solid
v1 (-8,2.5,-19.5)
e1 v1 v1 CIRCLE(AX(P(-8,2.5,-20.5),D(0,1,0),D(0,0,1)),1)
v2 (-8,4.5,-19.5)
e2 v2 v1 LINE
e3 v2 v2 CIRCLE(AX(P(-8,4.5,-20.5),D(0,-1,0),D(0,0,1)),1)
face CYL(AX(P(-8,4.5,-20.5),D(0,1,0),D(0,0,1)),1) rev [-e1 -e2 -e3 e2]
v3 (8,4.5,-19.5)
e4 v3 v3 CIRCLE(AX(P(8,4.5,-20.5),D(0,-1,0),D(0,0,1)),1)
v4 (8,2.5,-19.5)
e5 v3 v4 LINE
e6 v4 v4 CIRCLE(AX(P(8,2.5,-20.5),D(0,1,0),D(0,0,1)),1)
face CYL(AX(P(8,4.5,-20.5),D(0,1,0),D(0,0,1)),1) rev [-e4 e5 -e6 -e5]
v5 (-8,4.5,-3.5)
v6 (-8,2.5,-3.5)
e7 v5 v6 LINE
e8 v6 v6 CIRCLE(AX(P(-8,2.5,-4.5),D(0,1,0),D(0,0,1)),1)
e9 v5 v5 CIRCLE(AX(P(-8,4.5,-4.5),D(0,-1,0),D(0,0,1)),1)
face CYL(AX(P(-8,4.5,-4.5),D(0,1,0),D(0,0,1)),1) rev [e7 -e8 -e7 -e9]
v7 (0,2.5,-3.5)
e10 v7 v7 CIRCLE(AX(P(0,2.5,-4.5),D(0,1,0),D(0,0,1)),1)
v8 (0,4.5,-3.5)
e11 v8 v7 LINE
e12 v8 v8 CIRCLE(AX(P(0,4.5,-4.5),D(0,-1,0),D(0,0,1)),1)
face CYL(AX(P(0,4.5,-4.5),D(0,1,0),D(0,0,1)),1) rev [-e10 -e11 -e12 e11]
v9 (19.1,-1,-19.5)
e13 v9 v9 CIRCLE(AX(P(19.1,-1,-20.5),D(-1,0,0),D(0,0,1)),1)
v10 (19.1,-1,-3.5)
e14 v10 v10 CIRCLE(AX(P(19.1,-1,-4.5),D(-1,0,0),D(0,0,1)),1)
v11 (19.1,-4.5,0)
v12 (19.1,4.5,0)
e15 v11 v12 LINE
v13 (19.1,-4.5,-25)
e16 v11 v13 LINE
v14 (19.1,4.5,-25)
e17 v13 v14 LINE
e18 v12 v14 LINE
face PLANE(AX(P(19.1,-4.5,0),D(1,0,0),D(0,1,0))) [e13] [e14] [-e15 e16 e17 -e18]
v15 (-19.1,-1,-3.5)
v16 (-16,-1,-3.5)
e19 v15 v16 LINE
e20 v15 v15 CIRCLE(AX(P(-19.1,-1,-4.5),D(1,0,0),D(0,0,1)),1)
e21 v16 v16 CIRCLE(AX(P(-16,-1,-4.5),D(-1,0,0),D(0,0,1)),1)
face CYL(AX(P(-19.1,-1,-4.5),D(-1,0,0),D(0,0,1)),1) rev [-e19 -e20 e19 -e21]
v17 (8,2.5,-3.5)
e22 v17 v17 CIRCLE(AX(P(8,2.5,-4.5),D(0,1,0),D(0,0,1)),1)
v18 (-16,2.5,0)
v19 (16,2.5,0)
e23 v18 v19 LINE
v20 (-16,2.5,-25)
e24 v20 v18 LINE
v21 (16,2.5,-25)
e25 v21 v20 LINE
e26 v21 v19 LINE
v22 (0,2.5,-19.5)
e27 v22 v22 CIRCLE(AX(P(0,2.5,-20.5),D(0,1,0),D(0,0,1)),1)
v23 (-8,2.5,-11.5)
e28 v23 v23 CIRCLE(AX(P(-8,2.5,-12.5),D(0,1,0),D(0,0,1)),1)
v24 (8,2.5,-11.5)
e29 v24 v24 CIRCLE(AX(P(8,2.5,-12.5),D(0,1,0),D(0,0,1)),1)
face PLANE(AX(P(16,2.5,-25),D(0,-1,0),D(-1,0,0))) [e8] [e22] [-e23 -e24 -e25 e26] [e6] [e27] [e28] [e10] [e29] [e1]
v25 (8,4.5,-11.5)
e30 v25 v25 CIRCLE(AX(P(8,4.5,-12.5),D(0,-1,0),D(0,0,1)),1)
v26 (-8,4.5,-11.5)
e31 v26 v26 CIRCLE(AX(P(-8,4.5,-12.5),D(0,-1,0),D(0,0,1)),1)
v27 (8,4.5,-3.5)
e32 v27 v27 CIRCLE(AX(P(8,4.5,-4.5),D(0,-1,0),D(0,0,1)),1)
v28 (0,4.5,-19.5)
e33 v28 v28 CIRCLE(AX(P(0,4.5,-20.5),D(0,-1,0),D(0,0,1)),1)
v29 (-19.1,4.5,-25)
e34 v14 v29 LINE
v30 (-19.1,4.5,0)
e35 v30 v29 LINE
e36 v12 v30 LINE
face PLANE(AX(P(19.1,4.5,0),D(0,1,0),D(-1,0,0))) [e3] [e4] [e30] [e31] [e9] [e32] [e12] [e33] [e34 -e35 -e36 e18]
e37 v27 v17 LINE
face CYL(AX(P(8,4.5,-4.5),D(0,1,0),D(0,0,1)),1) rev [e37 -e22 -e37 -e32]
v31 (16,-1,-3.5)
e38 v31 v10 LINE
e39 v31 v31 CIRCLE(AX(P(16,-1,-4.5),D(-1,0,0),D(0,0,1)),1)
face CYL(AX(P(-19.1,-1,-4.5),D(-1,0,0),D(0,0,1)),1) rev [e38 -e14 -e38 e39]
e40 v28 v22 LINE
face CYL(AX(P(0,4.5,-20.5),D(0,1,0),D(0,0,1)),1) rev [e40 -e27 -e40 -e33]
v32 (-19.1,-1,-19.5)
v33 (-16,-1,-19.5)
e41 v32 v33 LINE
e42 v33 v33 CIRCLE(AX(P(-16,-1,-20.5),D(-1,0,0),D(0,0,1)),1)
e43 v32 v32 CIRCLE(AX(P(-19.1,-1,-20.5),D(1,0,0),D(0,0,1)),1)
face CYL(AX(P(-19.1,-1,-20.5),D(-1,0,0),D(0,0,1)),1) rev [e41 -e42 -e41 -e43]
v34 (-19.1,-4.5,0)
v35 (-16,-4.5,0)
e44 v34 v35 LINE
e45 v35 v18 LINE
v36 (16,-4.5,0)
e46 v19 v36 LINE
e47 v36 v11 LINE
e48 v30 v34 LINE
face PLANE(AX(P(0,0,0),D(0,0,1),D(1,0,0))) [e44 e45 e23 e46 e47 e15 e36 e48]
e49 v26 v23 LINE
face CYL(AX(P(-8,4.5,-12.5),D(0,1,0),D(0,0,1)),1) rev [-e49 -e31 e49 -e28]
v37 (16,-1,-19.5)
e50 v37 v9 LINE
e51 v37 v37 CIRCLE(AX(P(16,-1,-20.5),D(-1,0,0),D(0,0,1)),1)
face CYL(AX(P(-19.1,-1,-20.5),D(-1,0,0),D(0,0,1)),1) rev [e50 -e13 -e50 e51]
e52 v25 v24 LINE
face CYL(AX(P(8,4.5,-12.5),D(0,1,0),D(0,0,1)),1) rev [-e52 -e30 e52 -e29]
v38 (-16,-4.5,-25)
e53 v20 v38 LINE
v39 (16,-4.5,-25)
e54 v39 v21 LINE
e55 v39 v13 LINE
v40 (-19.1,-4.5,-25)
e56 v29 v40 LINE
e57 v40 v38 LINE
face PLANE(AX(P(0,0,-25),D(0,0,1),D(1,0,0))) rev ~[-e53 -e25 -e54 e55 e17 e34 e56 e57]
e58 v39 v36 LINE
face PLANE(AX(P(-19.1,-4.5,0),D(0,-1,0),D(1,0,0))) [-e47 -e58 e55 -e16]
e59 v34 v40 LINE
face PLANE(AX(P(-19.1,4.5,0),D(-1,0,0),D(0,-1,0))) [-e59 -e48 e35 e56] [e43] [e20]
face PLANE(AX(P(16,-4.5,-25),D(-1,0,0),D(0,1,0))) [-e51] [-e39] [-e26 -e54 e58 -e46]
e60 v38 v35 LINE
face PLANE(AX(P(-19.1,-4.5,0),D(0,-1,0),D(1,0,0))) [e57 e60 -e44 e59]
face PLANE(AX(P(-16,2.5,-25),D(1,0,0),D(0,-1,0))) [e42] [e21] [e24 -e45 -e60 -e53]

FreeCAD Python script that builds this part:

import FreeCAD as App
import Part
import Sketcher
from FreeCAD import Vector


def add_polygon(sketch, points):
    """Adds a closed chain of lines whose ends are joined by coincident constraints."""
    first, n = sketch.GeometryCount, len(points)
    for a, b in zip(points, points[1:] + points[:1]):
        sketch.addGeometry(Part.LineSegment(App.Vector(*a, 0), App.Vector(*b, 0)), False)
    for i in range(n):
        sketch.addConstraint(Sketcher.Constraint("Coincident", first + i, 2, first + (i + 1) % n, 1))

doc = App.newDocument("Part")
params = doc.addObject("Spreadsheet::Sheet", "Params")
for row, (alias, value) in enumerate([
    ("sketch1_height", "9 mm"),
    ("pad1_length", "25 mm"),
    ("sketch2_height", "7 mm"),
    ("sketch3_diameter", "2 mm"),
    ("hole_diameter", "2 mm"),
    ("sketch4_diameter", "2 mm"),
    ("hole2_diameter", "2 mm"),
    ("sketch5_diameter", "2 mm"),
    ("hole3_diameter", "2 mm"),
    ("sketch6_diameter", "2 mm"),
    ("hole4_diameter", "2 mm"),
    ("sketch7_diameter", "2 mm"),
    ("hole5_diameter", "2 mm"),
    ("sketch8_diameter", "2 mm"),
    ("hole6_diameter", "2 mm"),
    ("sketch9_diameter", "2 mm"),
    ("hole7_diameter", "2 mm"),
    ("sketch10_diameter", "2 mm"),
    ("hole8_diameter", "2 mm"),
    ("sketch11_diameter", "2 mm"),
    ("hole9_diameter", "2 mm"),
    ("sketch12_diameter", "2 mm"),
    ("hole10_diameter", "2 mm"),
], start=1):
    params.set(f"A{row}", alias)
    params.set(f"B{row}", "=" + value)
    params.setAlias(f"B{row}", alias)

body = doc.addObject("PartDesign::Body", "Body")

# Sketch on XY plane
sketch1 = body.newObject("Sketcher::SketchObject", "Sketch")
sketch1.AttachmentSupport = (doc.getObject("XY_Plane"), [""])
sketch1.MapMode = "FlatFace"
add_polygon(sketch1, [(19.1, -4.5), (-19.1, -4.5), (-19.1, 4.5), (19.1, 4.5)])  # lines 0-3
sketch1.addConstraint([
    Sketcher.Constraint("Horizontal", 0),
    Sketcher.Constraint("Vertical", 1),
    Sketcher.Constraint("Horizontal", 2),
    Sketcher.Constraint("Vertical", 3),
    Sketcher.Constraint("Symmetric", 0, 2, 2, 2, -1, 1),
    Sketcher.Constraint("DistanceX", 0, 2, -1, 1, 19.1),
    Sketcher.Constraint("DistanceY", 1, 1, 1, 2, 9.0),
])
sketch1.setExpression("Constraints[10]", "Params.sketch1_height")
pad1 = body.newObject("PartDesign::Pad", "Pad")
pad1.Profile = sketch1
pad1.setExpression("Length", "Params.pad1_length")
pad1.Reversed = True

# Sketch on XY plane
sketch2 = body.newObject("Sketcher::SketchObject", "Sketch001")
sketch2.AttachmentSupport = (doc.getObject("XY_Plane"), [""])
sketch2.MapMode = "FlatFace"
sketch2.AttachmentOffset = App.Placement(Vector(0, 0, -25), App.Rotation())
add_polygon(sketch2, [(16, -4.5), (-16, -4.5), (-16, 2.5), (16, 2.5)])  # lines 0-3
sketch2.addConstraint([
    Sketcher.Constraint("Horizontal", 0),
    Sketcher.Constraint("Vertical", 1),
    Sketcher.Constraint("Horizontal", 2),
    Sketcher.Constraint("Vertical", 3),
    Sketcher.Constraint("DistanceX", 0, 2, -1, 1, 16.0),
    Sketcher.Constraint("DistanceX", -1, 1, 2, 2, 16.0),
    Sketcher.Constraint("DistanceY", 1, 1, 1, 2, 7.0),
    Sketcher.Constraint("DistanceY", 0, 2, -1, 1, 4.5),
])
sketch2.setExpression("Constraints[10]", "Params.sketch2_height")
pocket1 = body.newObject("PartDesign::Pocket", "Pocket")
pocket1.Profile = sketch2
pocket1.Type = "ThroughAll"
pocket1.Reversed = True

# Sketch on YZ plane
sketch3 = body.newObject("Sketcher::SketchObject", "Sketch002")
sketch3.AttachmentSupport = (doc.getObject("YZ_Plane"), [""])
sketch3.MapMode = "FlatFace"
sketch3.AttachmentOffset = App.Placement(Vector(0, 0, -19.1), App.Rotation())
sketch3.addGeometry(Part.Circle(Vector(-1, -4.5, 0), Vector(0, 0, 1), 1), False)
sketch3.addConstraint([
    Sketcher.Constraint("Diameter", 0, 2.0),
    Sketcher.Constraint("DistanceX", 0, 3, -1, 1, 1.0),
    Sketcher.Constraint("DistanceY", 0, 3, -1, 1, 4.5),
])
sketch3.setExpression("Constraints[0]", "Params.sketch3_diameter")
doc.recompute()
hole = body.newObject("PartDesign::Hole", "Hole")
hole.Profile = sketch3
hole.ThreadType = "None"
hole.setExpression("Diameter", "Params.hole_diameter")
hole.DepthType = "ThroughAll"
hole.Reversed = True

# Sketch on YZ plane
sketch4 = body.newObject("Sketcher::SketchObject", "Sketch003")
sketch4.AttachmentSupport = (doc.getObject("YZ_Plane"), [""])
sketch4.MapMode = "FlatFace"
sketch4.AttachmentOffset = App.Placement(Vector(0, 0, -19.1), App.Rotation())
sketch4.addGeometry(Part.Circle(Vector(-1, -20.5, 0), Vector(0, 0, 1), 1), False)
sketch4.addConstraint([
    Sketcher.Constraint("Diameter", 0, 2.0),
    Sketcher.Constraint("DistanceX", 0, 3, -1, 1, 1.0),
    Sketcher.Constraint("DistanceY", 0, 3, -1, 1, 20.5),
])
sketch4.setExpression("Constraints[0]", "Params.sketch4_diameter")
doc.recompute()
hole2 = body.newObject("PartDesign::Hole", "Hole001")
hole2.Profile = sketch4
hole2.ThreadType = "None"
hole2.setExpression("Diameter", "Params.hole2_diameter")
hole2.DepthType = "ThroughAll"
hole2.Reversed = True

# Sketch on XZ plane
sketch5 = body.newObject("Sketcher::SketchObject", "Sketch004")
sketch5.AttachmentSupport = (doc.getObject("XZ_Plane"), [""])
sketch5.MapMode = "FlatFace"
sketch5.AttachmentOffset = App.Placement(Vector(0, 0, -4.5), App.Rotation())
sketch5.addGeometry(Part.Circle(Vector(0, -20.5, 0), Vector(0, 0, 1), 1), False)
sketch5.addConstraint([
    Sketcher.Constraint("PointOnObject", 0, 3, -2),
    Sketcher.Constraint("Diameter", 0, 2.0),
    Sketcher.Constraint("DistanceY", 0, 3, -1, 1, 20.5),
])
sketch5.setExpression("Constraints[1]", "Params.sketch5_diameter")
doc.recompute()
hole3 = body.newObject("PartDesign::Hole", "Hole002")
hole3.Profile = sketch5
hole3.ThreadType = "None"
hole3.setExpression("Diameter", "Params.hole3_diameter")
hole3.DepthType = "ThroughAll"
hole3.Reversed = True

# Sketch on XZ plane
sketch6 = body.newObject("Sketcher::SketchObject", "Sketch005")
sketch6.AttachmentSupport = (doc.getObject("XZ_Plane"), [""])
sketch6.MapMode = "FlatFace"
sketch6.AttachmentOffset = App.Placement(Vector(0, 0, -4.5), App.Rotation())
sketch6.addGeometry(Part.Circle(Vector(0, -4.5, 0), Vector(0, 0, 1), 1), False)
sketch6.addConstraint([
    Sketcher.Constraint("PointOnObject", 0, 3, -2),
    Sketcher.Constraint("Diameter", 0, 2.0),
    Sketcher.Constraint("DistanceY", 0, 3, -1, 1, 4.5),
])
sketch6.setExpression("Constraints[1]", "Params.sketch6_diameter")
doc.recompute()
hole4 = body.newObject("PartDesign::Hole", "Hole003")
hole4.Profile = sketch6
hole4.ThreadType = "None"
hole4.setExpression("Diameter", "Params.hole4_diameter")
hole4.DepthType = "ThroughAll"
hole4.Reversed = True

# Sketch on XZ plane
sketch7 = body.newObject("Sketcher::SketchObject", "Sketch006")
sketch7.AttachmentSupport = (doc.getObject("XZ_Plane"), [""])
sketch7.MapMode = "FlatFace"
sketch7.AttachmentOffset = App.Placement(Vector(0, 0, -4.5), App.Rotation())
sketch7.addGeometry(Part.Circle(Vector(-8, -4.5, 0), Vector(0, 0, 1), 1), False)
sketch7.addConstraint([
    Sketcher.Constraint("Diameter", 0, 2.0),
    Sketcher.Constraint("DistanceX", 0, 3, -1, 1, 8.0),
    Sketcher.Constraint("DistanceY", 0, 3, -1, 1, 4.5),
])
sketch7.setExpression("Constraints[0]", "Params.sketch7_diameter")
doc.recompute()
hole5 = body.newObject("PartDesign::Hole", "Hole004")
hole5.Profile = sketch7
hole5.ThreadType = "None"
hole5.setExpression("Diameter", "Params.hole5_diameter")
hole5.DepthType = "ThroughAll"
hole5.Reversed = True

# Sketch on XZ plane
sketch8 = body.newObject("Sketcher::SketchObject", "Sketch007")
sketch8.AttachmentSupport = (doc.getObject("XZ_Plane"), [""])
sketch8.MapMode = "FlatFace"
sketch8.AttachmentOffset = App.Placement(Vector(0, 0, -4.5), App.Rotation())
sketch8.addGeometry(Part.Circle(Vector(-8, -12.5, 0), Vector(0, 0, 1), 1), False)
sketch8.addConstraint([
    Sketcher.Constraint("Diameter", 0, 2.0),
    Sketcher.Constraint("DistanceX", 0, 3, -1, 1, 8.0),
    Sketcher.Constraint("DistanceY", 0, 3, -1, 1, 12.5),
])
sketch8.setExpression("Constraints[0]", "Params.sketch8_diameter")
doc.recompute()
hole6 = body.newObject("PartDesign::Hole", "Hole005")
hole6.Profile = sketch8
hole6.ThreadType = "None"
hole6.setExpression("Diameter", "Params.hole6_diameter")
hole6.DepthType = "ThroughAll"
hole6.Reversed = True

# Sketch on XZ plane
sketch9 = body.newObject("Sketcher::SketchObject", "Sketch008")
sketch9.AttachmentSupport = (doc.getObject("XZ_Plane"), [""])
sketch9.MapMode = "FlatFace"
sketch9.AttachmentOffset = App.Placement(Vector(0, 0, -4.5), App.Rotation())
sketch9.addGeometry(Part.Circle(Vector(-8, -20.5, 0), Vector(0, 0, 1), 1), False)
sketch9.addConstraint([
    Sketcher.Constraint("Diameter", 0, 2.0),
    Sketcher.Constraint("DistanceX", 0, 3, -1, 1, 8.0),
    Sketcher.Constraint("DistanceY", 0, 3, -1, 1, 20.5),
])
sketch9.setExpression("Constraints[0]", "Params.sketch9_diameter")
doc.recompute()
hole7 = body.newObject("PartDesign::Hole", "Hole006")
hole7.Profile = sketch9
hole7.ThreadType = "None"
hole7.setExpression("Diameter", "Params.hole7_diameter")
hole7.DepthType = "ThroughAll"
hole7.Reversed = True

# Sketch on XZ plane
sketch10 = body.newObject("Sketcher::SketchObject", "Sketch009")
sketch10.AttachmentSupport = (doc.getObject("XZ_Plane"), [""])
sketch10.MapMode = "FlatFace"
sketch10.AttachmentOffset = App.Placement(Vector(0, 0, -4.5), App.Rotation())
sketch10.addGeometry(Part.Circle(Vector(8, -20.5, 0), Vector(0, 0, 1), 1), False)
sketch10.addConstraint([
    Sketcher.Constraint("Diameter", 0, 2.0),
    Sketcher.Constraint("DistanceX", -1, 1, 0, 3, 8.0),
    Sketcher.Constraint("DistanceY", 0, 3, -1, 1, 20.5),
])
sketch10.setExpression("Constraints[0]", "Params.sketch10_diameter")
doc.recompute()
hole8 = body.newObject("PartDesign::Hole", "Hole007")
hole8.Profile = sketch10
hole8.ThreadType = "None"
hole8.setExpression("Diameter", "Params.hole8_diameter")
hole8.DepthType = "ThroughAll"
hole8.Reversed = True

# Sketch on XZ plane
sketch11 = body.newObject("Sketcher::SketchObject", "Sketch010")
sketch11.AttachmentSupport = (doc.getObject("XZ_Plane"), [""])
sketch11.MapMode = "FlatFace"
sketch11.AttachmentOffset = App.Placement(Vector(0, 0, -4.5), App.Rotation())
sketch11.addGeometry(Part.Circle(Vector(8, -12.5, 0), Vector(0, 0, 1), 1), False)
sketch11.addConstraint([
    Sketcher.Constraint("Diameter", 0, 2.0),
    Sketcher.Constraint("DistanceX", -1, 1, 0, 3, 8.0),
    Sketcher.Constraint("DistanceY", 0, 3, -1, 1, 12.5),
])
sketch11.setExpression("Constraints[0]", "Params.sketch11_diameter")
doc.recompute()
hole9 = body.newObject("PartDesign::Hole", "Hole008")
hole9.Profile = sketch11
hole9.ThreadType = "None"
hole9.setExpression("Diameter", "Params.hole9_diameter")
hole9.DepthType = "ThroughAll"
hole9.Reversed = True

# Sketch on XZ plane
sketch12 = body.newObject("Sketcher::SketchObject", "Sketch011")
sketch12.AttachmentSupport = (doc.getObject("XZ_Plane"), [""])
sketch12.MapMode = "FlatFace"
sketch12.AttachmentOffset = App.Placement(Vector(0, 0, -4.5), App.Rotation())
sketch12.addGeometry(Part.Circle(Vector(8, -4.5, 0), Vector(0, 0, 1), 1), False)
sketch12.addConstraint([
    Sketcher.Constraint("Diameter", 0, 2.0),
    Sketcher.Constraint("DistanceX", -1, 1, 0, 3, 8.0),
    Sketcher.Constraint("DistanceY", 0, 3, -1, 1, 4.5),
])
sketch12.setExpression("Constraints[0]", "Params.sketch12_diameter")
doc.recompute()
hole10 = body.newObject("PartDesign::Hole", "Hole009")
hole10.Profile = sketch12
hole10.ThreadType = "None"
hole10.setExpression("Diameter", "Params.hole10_diameter")
hole10.DepthType = "ThroughAll"
hole10.Reversed = True

doc.recompute()
